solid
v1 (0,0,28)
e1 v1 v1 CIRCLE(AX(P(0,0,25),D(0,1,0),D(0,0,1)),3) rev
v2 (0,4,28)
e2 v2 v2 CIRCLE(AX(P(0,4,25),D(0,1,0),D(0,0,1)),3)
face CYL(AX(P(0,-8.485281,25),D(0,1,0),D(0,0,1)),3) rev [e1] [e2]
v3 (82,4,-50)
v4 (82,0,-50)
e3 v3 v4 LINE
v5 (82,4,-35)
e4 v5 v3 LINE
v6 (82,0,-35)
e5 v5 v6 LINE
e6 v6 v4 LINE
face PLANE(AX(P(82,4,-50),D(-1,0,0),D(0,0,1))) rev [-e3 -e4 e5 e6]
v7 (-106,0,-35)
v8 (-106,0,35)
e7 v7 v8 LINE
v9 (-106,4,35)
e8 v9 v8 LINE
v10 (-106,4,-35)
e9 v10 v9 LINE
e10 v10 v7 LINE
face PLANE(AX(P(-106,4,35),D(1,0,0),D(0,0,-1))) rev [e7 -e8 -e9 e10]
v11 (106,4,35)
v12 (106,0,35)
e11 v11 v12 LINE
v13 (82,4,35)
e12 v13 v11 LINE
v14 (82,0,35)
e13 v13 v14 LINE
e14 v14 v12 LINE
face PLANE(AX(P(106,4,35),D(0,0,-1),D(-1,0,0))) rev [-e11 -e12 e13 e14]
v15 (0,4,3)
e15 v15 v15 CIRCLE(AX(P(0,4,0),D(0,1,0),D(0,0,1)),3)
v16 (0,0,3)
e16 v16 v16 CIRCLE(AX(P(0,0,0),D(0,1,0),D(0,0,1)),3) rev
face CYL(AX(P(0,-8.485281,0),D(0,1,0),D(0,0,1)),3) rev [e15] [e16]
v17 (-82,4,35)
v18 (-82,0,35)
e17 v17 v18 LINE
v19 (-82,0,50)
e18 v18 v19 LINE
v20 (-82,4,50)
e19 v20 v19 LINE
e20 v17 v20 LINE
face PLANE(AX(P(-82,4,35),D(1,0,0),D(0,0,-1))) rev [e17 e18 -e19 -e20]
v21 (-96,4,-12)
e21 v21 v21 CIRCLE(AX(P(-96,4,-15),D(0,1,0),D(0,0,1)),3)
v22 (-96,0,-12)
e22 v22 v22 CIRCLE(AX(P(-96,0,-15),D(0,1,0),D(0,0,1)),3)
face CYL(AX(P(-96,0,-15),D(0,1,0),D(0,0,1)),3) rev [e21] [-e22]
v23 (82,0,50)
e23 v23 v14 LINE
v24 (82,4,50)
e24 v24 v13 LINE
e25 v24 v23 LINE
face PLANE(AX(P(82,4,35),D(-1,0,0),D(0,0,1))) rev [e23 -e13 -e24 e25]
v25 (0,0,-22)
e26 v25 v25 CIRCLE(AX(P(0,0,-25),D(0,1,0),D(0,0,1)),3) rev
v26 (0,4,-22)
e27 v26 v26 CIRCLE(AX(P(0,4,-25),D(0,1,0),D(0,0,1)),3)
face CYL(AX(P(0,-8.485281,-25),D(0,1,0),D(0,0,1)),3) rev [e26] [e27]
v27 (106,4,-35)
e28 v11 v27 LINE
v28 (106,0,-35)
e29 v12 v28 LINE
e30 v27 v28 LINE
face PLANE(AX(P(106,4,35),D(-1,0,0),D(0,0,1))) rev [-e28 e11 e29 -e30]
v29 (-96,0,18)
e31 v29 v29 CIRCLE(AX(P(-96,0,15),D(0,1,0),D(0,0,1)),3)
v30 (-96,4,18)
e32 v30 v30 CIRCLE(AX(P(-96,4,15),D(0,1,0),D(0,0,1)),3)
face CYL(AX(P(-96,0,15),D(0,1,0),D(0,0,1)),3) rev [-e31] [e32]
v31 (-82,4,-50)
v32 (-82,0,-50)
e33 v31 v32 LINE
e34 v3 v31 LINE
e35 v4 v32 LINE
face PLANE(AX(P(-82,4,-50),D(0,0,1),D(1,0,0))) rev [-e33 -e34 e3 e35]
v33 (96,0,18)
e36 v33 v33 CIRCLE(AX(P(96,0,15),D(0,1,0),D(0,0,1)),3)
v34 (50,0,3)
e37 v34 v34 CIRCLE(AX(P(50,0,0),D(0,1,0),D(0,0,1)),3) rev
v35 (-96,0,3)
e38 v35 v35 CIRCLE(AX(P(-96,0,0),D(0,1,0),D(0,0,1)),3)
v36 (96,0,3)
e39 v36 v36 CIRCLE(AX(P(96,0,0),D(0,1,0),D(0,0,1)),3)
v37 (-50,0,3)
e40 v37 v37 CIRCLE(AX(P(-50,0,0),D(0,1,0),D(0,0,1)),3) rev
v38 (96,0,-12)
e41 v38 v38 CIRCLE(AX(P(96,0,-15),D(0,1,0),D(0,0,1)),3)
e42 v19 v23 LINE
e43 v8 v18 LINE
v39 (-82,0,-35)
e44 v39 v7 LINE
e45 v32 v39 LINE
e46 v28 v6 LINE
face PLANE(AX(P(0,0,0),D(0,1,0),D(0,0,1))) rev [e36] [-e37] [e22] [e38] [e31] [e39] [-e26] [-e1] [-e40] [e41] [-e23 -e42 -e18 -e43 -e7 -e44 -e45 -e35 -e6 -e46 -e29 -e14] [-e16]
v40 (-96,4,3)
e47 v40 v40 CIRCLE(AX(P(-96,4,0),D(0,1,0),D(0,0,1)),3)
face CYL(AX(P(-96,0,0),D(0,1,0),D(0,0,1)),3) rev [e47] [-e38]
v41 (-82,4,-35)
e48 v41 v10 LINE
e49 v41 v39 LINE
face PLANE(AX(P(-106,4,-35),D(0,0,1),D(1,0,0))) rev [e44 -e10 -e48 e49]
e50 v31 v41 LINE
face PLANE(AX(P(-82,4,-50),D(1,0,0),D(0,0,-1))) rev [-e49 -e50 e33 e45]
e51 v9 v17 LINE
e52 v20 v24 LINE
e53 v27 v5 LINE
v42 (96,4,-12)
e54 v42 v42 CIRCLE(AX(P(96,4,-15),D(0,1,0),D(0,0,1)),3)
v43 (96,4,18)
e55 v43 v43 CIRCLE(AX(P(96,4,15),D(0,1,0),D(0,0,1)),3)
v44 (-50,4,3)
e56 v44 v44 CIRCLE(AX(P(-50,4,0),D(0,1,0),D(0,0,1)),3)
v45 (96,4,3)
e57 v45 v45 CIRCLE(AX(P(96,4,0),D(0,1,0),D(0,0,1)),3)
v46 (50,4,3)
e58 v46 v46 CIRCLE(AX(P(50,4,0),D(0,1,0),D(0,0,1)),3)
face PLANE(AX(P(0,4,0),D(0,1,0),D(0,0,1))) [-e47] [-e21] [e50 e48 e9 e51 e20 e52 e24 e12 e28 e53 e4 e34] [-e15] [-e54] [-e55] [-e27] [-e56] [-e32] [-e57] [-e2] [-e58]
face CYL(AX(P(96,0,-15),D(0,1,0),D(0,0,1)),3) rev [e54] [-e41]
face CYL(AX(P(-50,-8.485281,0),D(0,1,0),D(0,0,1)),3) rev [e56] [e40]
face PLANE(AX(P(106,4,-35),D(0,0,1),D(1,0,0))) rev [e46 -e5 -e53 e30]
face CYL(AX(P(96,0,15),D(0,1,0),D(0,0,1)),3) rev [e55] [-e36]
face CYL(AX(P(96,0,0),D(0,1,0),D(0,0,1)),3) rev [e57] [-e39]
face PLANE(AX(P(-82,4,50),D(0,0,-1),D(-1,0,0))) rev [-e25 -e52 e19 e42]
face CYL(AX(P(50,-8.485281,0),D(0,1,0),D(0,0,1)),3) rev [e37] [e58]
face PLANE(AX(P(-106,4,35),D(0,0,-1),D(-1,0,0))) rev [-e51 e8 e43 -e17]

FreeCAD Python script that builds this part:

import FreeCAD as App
import Part
import Sketcher
Q = App.Units.Quantity


def add_polygon(sketch, points):
    """Adds a closed chain of lines whose ends are joined by coincident constraints."""
    first, n = sketch.GeometryCount, len(points)
    for a, b in zip(points, points[1:] + points[:1]):
        sketch.addGeometry(Part.LineSegment(App.Vector(*a, 0), App.Vector(*b, 0)), False)
    for i in range(n):
        sketch.addConstraint(Sketcher.Constraint("Coincident", first + i, 2, first + (i + 1) % n, 1))

doc = App.newDocument("Part")
body = doc.addObject("PartDesign::Body", "Body")

# Sketch on XZ plane
sketch1 = body.newObject("Sketcher::SketchObject", "Sketch")
sketch1.AttachmentSupport = (doc.getObject("XZ_Plane"), [""])
sketch1.MapMode = "FlatFace"
add_polygon(sketch1, [(-82, 35), (-82, 50), (82, 50), (82, 35), (106, 35), (106, -35), (82, -35), (82, -50), (-82, -50), (-82, -35), (-106, -35), (-106, 35)])  # lines 0-11
sketch1.addConstraint([
    Sketcher.Constraint("Vertical", 0),
    Sketcher.Constraint("Horizontal", 1),
    Sketcher.Constraint("Vertical", 2),
    Sketcher.Constraint("Horizontal", 3),
    Sketcher.Constraint("Vertical", 4),
    Sketcher.Constraint("Horizontal", 5),
    Sketcher.Constraint("Vertical", 6),
    Sketcher.Constraint("Horizontal", 7),
    Sketcher.Constraint("Vertical", 8),
    Sketcher.Constraint("Horizontal", 9),
    Sketcher.Constraint("Vertical", 10),
    Sketcher.Constraint("Horizontal", 11),
    Sketcher.Constraint("Symmetric", 0, 2, 6, 2, -1, 1),
    Sketcher.Constraint("Symmetric", 2, 2, 8, 2, -1, 1),
    Sketcher.Constraint("Symmetric", 4, 2, 10, 2, -1, 1),
    Sketcher.Constraint("Symmetric", 5, 2, 8, 2, -2),
    Sketcher.Constraint("DistanceX", 1, 1, 1, 2, Q("164 mm")),
    Sketcher.Constraint("DistanceX", 3, 1, 3, 2, Q("24 mm")),
    Sketcher.Constraint("DistanceY", 0, 1, 0, 2, Q("15 mm")),
    Sketcher.Constraint("DistanceY", 4, 2, 4, 1, Q("70 mm")),
])
pad1 = body.newObject("PartDesign::Pad", "Pad")
pad1.Profile = sketch1
pad1.Length = 4
pad1.Reversed = True

# Sketch on XZ plane
sketch2 = body.newObject("Sketcher::SketchObject", "Sketch001")
sketch2.AttachmentSupport = (doc.getObject("XZ_Plane"), [""])
sketch2.MapMode = "FlatFace"
sketch2.AttachmentOffset = App.Placement(App.Vector(0, 0, -4), App.Rotation())
sketch2.addGeometry([
    Part.Circle(App.Vector(-96, 0, 0), App.Vector(0, 0, 1), 3),
    Part.Circle(App.Vector(-96, -15, 0), App.Vector(0, 0, 1), 3),
    Part.Circle(App.Vector(-96, 15, 0), App.Vector(0, 0, 1), 3),
], False)
sketch2.addConstraint([
    Sketcher.Constraint("Equal", 0, 1),
    Sketcher.Constraint("Equal", 1, 2),
    Sketcher.Constraint("Symmetric", 1, 3, 2, 3, -1),
    Sketcher.Constraint("PointOnObject", 0, 3, -1),
    Sketcher.Constraint("Vertical", 0, 3, 1, 3),
    Sketcher.Constraint("Diameter", 0, Q("6 mm")),
    Sketcher.Constraint("DistanceX", 0, 3, -1, 1, Q("96 mm")),
    Sketcher.Constraint("DistanceY", 1, 3, -1, 1, Q("15 mm")),
])
pocket1 = body.newObject("PartDesign::Pocket", "Pocket")
pocket1.Profile = sketch2
pocket1.Length = 4
pocket1.Reversed = True

# Sketch on XZ plane
sketch3 = body.newObject("Sketcher::SketchObject", "Sketch002")
sketch3.AttachmentSupport = (doc.getObject("XZ_Plane"), [""])
sketch3.MapMode = "FlatFace"
sketch3.AttachmentOffset = App.Placement(App.Vector(0, 0, -4), App.Rotation())
sketch3.addGeometry([
    Part.Circle(App.Vector(96, -15, 0), App.Vector(0, 0, 1), 3),
    Part.Circle(App.Vector(96, 15, 0), App.Vector(0, 0, 1), 3),
    Part.Circle(App.Vector(96, 0, 0), App.Vector(0, 0, 1), 3),
], False)
sketch3.addConstraint([
    Sketcher.Constraint("Equal", 0, 1),
    Sketcher.Constraint("Equal", 1, 2),
    Sketcher.Constraint("Symmetric", 0, 3, 1, 3, -1),
    Sketcher.Constraint("PointOnObject", 2, 3, -1),
    Sketcher.Constraint("Vertical", 1, 3, 2, 3),
    Sketcher.Constraint("Diameter", 0, Q("6 mm")),
    Sketcher.Constraint("DistanceX", -1, 1, 0, 3, Q("96 mm")),
    Sketcher.Constraint("DistanceY", 0, 3, -1, 1, Q("15 mm")),
])
pocket2 = body.newObject("PartDesign::Pocket", "Pocket001")
pocket2.Profile = sketch3
pocket2.Length = 4
pocket2.Reversed = True

# Sketch on XZ plane
sketch4 = body.newObject("Sketcher::SketchObject", "Sketch003")
sketch4.AttachmentSupport = (doc.getObject("XZ_Plane"), [""])
sketch4.MapMode = "FlatFace"
sketch4.AttachmentOffset = App.Placement(App.Vector(0, 0, -4), App.Rotation())
sketch4.addGeometry([
    Part.Circle(App.Vector(0, -25, 0), App.Vector(0, 0, 1), 3),  # 0
    Part.Circle(App.Vector(50, 0, 0), App.Vector(0, 0, 1), 3),  # 1
    Part.Circle(App.Vector(0, 25, 0), App.Vector(0, 0, 1), 3),  # 2
    Part.Circle(App.Vector(-50, 0, 0), App.Vector(0, 0, 1), 3),  # 3
    Part.Circle(App.Vector(0, 0, 0), App.Vector(0, 0, 1), 3),  # 4
], False)
sketch4.addConstraint([
    Sketcher.Constraint("Coincident", 4, 3, -1, 1),
    Sketcher.Constraint("Equal", 0, 1),
    Sketcher.Constraint("Equal", 1, 2),
    Sketcher.Constraint("Equal", 2, 3),
    Sketcher.Constraint("Equal", 3, 4),
    Sketcher.Constraint("Symmetric", 0, 3, 2, 3, -1, 1),
    Sketcher.Constraint("Symmetric", 1, 3, 3, 3, -1, 1),
    Sketcher.Constraint("PointOnObject", 0, 3, -2),
    Sketcher.Constraint("PointOnObject", 1, 3, -1),
    Sketcher.Constraint("Diameter", 0, Q("6 mm")),
    Sketcher.Constraint("DistanceY", 0, 3, -1, 1, Q("25 mm")),
    Sketcher.Constraint("DistanceX", -1, 1, 1, 3, Q("50 mm")),
])
pocket3 = body.newObject("PartDesign::Pocket", "Pocket002")
pocket3.Profile = sketch4
pocket3.Length = 4
pocket3.Reversed = True

doc.recompute()
